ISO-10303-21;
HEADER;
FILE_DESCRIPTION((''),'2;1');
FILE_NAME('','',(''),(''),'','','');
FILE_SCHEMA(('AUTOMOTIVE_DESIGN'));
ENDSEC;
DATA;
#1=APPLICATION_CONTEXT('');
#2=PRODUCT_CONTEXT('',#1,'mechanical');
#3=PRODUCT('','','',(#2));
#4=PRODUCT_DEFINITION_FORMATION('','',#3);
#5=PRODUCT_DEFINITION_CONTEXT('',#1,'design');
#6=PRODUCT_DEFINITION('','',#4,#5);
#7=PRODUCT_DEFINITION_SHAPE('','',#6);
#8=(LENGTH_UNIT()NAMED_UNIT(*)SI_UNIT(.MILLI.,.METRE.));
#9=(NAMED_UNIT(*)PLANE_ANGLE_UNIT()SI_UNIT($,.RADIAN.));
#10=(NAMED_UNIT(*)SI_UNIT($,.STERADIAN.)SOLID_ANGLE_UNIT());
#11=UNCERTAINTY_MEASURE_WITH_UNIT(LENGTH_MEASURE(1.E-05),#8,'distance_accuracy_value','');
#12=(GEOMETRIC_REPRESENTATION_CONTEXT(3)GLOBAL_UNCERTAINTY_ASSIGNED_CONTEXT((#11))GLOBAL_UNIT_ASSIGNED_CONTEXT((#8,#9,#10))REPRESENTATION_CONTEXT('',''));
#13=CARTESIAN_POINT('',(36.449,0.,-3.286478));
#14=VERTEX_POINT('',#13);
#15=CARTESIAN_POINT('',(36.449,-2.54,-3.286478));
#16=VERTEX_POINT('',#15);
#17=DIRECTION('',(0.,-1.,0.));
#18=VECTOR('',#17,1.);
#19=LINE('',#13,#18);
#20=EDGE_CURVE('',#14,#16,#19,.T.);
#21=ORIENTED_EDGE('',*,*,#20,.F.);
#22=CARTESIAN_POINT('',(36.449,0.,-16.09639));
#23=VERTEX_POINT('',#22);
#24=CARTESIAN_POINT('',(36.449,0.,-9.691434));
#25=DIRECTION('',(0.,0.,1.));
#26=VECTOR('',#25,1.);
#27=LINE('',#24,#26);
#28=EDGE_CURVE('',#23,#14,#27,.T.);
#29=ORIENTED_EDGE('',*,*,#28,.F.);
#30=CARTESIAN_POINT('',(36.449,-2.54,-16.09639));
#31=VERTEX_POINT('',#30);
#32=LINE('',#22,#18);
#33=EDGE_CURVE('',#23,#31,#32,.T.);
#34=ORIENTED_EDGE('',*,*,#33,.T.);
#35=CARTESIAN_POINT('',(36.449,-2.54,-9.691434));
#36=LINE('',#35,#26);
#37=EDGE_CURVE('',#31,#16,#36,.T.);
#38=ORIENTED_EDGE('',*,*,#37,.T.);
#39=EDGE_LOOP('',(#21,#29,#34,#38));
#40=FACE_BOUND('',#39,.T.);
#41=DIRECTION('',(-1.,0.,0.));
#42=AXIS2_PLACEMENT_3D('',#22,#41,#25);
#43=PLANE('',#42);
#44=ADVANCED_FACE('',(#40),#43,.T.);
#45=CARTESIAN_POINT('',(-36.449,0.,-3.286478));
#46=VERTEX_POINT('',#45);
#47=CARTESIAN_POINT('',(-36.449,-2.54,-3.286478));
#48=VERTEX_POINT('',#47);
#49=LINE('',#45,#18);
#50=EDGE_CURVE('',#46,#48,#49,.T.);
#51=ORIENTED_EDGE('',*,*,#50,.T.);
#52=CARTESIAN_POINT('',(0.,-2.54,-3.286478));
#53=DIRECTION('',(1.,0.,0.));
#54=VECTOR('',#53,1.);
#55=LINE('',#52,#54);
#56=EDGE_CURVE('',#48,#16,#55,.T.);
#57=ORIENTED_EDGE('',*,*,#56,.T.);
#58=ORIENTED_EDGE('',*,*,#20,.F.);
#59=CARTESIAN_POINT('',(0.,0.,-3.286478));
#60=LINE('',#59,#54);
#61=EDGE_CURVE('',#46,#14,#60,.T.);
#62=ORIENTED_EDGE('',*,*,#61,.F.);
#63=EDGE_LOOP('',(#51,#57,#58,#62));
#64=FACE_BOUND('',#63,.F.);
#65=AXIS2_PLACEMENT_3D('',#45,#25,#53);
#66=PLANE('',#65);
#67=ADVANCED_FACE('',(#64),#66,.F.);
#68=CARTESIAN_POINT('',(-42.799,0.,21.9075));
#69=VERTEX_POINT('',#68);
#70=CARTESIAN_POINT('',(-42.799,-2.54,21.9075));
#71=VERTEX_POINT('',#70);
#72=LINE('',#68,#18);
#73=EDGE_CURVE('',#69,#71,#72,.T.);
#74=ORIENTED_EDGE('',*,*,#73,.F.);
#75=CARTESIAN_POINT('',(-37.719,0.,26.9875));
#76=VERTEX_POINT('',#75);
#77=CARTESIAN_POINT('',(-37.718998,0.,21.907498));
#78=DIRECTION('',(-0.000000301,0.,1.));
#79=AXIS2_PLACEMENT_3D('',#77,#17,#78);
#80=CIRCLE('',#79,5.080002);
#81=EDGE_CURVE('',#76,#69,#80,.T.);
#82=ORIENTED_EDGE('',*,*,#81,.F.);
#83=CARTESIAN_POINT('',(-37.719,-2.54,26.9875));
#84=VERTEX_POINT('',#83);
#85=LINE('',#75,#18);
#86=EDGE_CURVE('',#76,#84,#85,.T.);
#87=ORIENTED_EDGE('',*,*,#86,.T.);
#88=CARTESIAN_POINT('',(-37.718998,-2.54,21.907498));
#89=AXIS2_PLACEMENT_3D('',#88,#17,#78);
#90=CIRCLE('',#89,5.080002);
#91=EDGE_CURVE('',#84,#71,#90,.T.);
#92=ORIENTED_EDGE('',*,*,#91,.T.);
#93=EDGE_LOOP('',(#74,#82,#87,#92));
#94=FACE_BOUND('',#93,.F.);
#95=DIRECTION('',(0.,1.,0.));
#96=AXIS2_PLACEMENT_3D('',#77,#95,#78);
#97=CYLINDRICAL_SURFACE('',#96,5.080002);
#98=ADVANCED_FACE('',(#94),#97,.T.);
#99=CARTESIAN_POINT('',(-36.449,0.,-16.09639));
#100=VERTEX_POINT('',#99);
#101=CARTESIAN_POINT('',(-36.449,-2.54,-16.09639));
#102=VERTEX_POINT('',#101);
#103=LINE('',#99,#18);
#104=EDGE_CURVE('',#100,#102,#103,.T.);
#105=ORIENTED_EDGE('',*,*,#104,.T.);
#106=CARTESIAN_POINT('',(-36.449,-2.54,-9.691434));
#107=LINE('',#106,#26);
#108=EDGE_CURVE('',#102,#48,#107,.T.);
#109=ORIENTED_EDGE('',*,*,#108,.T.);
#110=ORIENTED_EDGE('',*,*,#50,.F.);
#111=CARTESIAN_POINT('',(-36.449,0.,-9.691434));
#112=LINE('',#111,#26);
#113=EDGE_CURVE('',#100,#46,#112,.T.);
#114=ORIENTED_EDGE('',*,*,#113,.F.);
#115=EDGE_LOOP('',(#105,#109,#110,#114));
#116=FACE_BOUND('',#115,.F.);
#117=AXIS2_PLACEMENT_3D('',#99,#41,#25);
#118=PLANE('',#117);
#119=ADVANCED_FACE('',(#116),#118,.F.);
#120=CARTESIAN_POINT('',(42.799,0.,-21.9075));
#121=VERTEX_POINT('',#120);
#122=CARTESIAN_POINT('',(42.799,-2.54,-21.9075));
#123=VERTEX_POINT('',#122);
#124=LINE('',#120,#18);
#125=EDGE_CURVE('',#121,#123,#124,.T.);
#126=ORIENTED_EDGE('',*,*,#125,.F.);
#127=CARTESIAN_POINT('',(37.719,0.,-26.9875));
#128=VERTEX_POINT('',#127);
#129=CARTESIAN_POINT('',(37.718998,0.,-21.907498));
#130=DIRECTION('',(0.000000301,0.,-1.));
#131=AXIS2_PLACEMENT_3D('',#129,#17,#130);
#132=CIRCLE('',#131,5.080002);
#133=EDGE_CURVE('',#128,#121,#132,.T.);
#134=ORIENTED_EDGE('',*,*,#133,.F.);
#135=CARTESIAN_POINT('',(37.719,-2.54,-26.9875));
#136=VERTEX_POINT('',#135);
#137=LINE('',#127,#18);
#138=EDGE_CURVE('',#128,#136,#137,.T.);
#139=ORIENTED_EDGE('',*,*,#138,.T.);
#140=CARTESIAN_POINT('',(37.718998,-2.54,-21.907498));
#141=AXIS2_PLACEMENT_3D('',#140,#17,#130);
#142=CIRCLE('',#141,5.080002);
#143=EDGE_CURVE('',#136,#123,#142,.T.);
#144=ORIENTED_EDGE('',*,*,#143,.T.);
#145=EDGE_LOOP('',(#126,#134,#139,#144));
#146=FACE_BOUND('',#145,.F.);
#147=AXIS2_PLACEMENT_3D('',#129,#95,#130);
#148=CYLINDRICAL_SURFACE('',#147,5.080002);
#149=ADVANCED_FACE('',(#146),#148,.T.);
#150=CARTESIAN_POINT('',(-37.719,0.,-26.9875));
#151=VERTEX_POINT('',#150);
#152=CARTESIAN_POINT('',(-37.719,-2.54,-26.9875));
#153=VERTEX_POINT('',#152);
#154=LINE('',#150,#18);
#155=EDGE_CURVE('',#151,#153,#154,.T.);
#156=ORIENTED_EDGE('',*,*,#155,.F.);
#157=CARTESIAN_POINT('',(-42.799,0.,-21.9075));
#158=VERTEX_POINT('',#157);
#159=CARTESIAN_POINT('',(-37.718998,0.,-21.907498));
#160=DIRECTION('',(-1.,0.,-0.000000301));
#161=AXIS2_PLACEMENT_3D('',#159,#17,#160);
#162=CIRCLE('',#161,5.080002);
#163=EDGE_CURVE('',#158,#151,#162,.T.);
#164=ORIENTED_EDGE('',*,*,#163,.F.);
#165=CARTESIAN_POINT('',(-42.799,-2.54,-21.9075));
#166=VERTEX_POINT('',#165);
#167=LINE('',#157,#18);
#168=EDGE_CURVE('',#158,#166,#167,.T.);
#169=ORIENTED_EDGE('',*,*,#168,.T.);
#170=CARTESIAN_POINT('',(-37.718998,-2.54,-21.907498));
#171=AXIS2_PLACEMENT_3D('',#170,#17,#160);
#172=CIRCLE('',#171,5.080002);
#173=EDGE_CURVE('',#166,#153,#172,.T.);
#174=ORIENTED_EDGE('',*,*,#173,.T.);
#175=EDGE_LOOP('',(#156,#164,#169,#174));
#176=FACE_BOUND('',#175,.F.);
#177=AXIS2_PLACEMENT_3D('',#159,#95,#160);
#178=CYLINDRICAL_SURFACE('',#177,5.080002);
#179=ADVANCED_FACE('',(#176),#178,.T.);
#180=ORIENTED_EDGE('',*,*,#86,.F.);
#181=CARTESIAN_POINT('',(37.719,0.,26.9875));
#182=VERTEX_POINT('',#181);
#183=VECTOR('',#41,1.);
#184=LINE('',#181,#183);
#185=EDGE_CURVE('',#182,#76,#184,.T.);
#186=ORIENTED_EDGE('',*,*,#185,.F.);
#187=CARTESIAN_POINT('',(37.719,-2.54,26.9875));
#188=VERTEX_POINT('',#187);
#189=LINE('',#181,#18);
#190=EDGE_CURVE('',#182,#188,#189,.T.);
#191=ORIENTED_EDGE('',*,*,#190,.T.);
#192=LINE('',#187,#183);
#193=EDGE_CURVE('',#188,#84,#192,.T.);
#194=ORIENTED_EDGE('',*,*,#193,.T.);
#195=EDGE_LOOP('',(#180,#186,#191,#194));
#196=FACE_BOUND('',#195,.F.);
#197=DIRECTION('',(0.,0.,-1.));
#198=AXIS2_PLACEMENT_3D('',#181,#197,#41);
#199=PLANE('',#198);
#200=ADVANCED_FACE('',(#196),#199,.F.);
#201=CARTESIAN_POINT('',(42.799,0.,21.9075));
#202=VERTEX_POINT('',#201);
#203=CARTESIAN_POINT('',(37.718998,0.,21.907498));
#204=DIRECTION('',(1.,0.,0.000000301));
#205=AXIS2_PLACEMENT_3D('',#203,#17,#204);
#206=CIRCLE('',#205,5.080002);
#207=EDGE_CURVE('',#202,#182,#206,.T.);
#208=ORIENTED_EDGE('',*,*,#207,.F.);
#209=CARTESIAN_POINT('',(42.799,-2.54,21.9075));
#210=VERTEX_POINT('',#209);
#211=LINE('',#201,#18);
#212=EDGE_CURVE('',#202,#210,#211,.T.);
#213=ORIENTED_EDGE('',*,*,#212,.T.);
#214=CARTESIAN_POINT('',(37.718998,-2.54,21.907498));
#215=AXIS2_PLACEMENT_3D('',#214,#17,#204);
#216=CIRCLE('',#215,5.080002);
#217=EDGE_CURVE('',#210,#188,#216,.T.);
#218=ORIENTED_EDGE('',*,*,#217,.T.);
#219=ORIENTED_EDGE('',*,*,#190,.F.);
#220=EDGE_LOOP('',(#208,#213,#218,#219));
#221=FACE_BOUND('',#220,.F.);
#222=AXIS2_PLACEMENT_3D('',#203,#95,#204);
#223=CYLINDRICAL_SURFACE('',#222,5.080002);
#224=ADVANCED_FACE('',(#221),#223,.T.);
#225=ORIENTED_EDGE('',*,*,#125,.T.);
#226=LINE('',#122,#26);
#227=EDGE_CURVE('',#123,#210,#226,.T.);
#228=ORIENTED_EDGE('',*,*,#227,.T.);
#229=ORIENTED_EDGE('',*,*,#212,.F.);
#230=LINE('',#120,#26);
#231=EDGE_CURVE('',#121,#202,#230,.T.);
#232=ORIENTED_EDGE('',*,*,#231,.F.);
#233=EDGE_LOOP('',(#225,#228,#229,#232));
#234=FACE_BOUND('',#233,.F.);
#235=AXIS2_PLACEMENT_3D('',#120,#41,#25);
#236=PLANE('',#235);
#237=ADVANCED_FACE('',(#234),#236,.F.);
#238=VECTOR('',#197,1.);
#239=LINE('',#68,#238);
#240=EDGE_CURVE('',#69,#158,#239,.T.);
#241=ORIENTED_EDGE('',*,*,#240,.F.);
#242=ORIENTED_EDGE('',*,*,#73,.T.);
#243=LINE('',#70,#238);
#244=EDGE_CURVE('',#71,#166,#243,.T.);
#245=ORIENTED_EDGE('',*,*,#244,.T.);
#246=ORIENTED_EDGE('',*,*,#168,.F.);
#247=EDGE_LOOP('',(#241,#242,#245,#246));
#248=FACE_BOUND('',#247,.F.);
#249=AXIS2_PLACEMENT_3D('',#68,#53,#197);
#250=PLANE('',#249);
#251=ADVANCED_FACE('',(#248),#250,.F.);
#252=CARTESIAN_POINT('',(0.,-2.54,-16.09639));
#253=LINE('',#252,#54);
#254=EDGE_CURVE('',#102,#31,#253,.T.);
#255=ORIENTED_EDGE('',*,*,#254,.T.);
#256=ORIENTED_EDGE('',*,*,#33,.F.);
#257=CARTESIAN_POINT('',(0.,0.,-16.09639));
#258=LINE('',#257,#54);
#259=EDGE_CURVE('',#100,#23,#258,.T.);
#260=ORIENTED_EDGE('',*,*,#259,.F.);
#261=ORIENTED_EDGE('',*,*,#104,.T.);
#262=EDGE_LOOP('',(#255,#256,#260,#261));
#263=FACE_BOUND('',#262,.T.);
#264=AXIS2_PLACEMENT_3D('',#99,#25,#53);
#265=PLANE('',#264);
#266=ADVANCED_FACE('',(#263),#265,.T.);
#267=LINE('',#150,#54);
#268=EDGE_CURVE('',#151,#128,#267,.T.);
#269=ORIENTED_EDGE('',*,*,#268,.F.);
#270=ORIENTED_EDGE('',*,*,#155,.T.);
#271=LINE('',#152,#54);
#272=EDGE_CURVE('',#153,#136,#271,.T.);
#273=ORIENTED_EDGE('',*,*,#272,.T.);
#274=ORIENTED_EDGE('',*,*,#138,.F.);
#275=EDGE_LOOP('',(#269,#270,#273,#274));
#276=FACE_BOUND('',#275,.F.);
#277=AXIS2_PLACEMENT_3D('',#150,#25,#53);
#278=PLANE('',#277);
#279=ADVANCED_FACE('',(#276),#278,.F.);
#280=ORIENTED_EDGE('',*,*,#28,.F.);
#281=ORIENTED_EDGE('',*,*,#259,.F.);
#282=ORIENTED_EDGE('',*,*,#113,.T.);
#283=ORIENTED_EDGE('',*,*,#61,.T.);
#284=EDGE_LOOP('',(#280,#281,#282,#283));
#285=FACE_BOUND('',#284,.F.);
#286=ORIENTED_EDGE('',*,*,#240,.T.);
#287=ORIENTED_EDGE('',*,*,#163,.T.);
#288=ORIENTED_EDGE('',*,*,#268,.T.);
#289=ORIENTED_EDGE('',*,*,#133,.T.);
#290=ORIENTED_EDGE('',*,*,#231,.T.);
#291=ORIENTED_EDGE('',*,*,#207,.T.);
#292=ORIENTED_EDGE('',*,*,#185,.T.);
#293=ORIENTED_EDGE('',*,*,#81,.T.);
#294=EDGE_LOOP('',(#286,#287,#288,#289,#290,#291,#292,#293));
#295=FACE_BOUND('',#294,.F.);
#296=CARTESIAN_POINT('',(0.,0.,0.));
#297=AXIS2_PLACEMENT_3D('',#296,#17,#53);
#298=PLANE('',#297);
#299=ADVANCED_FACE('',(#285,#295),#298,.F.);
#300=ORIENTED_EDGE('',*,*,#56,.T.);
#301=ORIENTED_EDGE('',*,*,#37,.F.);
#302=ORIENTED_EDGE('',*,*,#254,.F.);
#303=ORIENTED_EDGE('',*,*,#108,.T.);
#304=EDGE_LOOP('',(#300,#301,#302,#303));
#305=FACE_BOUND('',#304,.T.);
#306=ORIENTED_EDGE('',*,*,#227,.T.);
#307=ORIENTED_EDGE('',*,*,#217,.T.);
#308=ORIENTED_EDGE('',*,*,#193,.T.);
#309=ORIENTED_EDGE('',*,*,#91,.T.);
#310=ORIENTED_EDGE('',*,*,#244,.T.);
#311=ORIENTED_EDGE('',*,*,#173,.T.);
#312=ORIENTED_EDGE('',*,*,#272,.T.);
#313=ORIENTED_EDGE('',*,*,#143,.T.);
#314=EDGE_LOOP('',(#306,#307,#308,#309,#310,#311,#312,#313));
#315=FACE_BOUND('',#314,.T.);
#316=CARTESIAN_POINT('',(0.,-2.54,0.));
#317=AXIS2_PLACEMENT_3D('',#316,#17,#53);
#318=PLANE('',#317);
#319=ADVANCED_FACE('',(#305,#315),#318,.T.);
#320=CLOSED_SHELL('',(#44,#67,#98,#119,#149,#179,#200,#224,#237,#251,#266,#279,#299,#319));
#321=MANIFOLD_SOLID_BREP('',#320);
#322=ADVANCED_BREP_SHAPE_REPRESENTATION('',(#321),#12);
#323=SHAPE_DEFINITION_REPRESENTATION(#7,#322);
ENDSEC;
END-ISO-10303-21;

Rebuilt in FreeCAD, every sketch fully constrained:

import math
import FreeCAD as App
import Part
import Sketcher
Q = App.Units.Quantity

doc = App.newDocument("Part")
body = doc.addObject("PartDesign::Body", "Body")

# Sketch on XZ plane
sketch1 = body.newObject("Sketcher::SketchObject", "Sketch")
sketch1.AttachmentSupport = (doc.getObject("XZ_Plane"), [""])
sketch1.MapMode = "FlatFace"
sketch1.addGeometry(Part.LineSegment(App.Vector(37.719, 26.9875, 0), App.Vector(-37.719, 26.9875, 0)), False)
sketch1.addGeometry(Part.ArcOfCircle(Part.Circle(App.Vector(-37.718998, 21.907498, 0), App.Vector(0, 0, 1), 5.080002), math.radians(90.000017), math.radians(179.999983)), False)
sketch1.addGeometry(Part.LineSegment(App.Vector(-42.799, 21.9075, 0), App.Vector(-42.799, -21.9075, 0)), False)
sketch1.addGeometry(Part.ArcOfCircle(Part.Circle(App.Vector(-37.718998, -21.907498, 0), App.Vector(0, 0, 1), 5.080002), math.radians(-179.999983), math.radians(-90.000017)), False)
sketch1.addGeometry(Part.LineSegment(App.Vector(-37.719, -26.9875, 0), App.Vector(37.719, -26.9875, 0)), False)
sketch1.addGeometry(Part.ArcOfCircle(Part.Circle(App.Vector(37.718998, -21.907498, 0), App.Vector(0, 0, 1), 5.080002), math.radians(-89.999983), math.radians(-0.000017)), False)
sketch1.addGeometry(Part.LineSegment(App.Vector(42.799, -21.9075, 0), App.Vector(42.799, 21.9075, 0)), False)
sketch1.addGeometry(Part.ArcOfCircle(Part.Circle(App.Vector(37.718998, 21.907498, 0), App.Vector(0, 0, 1), 5.080002), math.radians(0.000017), math.radians(89.999983)), False)
sketch1.addGeometry(Part.LineSegment(App.Vector(36.449, -16.09639, 0), App.Vector(-36.449, -16.09639, 0)), False)
sketch1.addGeometry(Part.LineSegment(App.Vector(-36.449, -16.09639, 0), App.Vector(-36.449, -3.286478, 0)), False)
sketch1.addGeometry(Part.LineSegment(App.Vector(-36.449, -3.286478, 0), App.Vector(36.449, -3.286478, 0)), False)
sketch1.addGeometry(Part.LineSegment(App.Vector(36.449, -3.286478, 0), App.Vector(36.449, -16.09639, 0)), False)
sketch1.addConstraint(Sketcher.Constraint("Tangent", 0, 2, 1, 1))
sketch1.addConstraint(Sketcher.Constraint("Tangent", 1, 2, 2, 1))
sketch1.addConstraint(Sketcher.Constraint("Tangent", 2, 2, 3, 1))
sketch1.addConstraint(Sketcher.Constraint("Tangent", 3, 2, 4, 1))
sketch1.addConstraint(Sketcher.Constraint("Tangent", 4, 2, 5, 1))
sketch1.addConstraint(Sketcher.Constraint("Tangent", 5, 2, 6, 1))
sketch1.addConstraint(Sketcher.Constraint("Tangent", 6, 2, 7, 1))
sketch1.addConstraint(Sketcher.Constraint("Tangent", 7, 2, 0, 1))
sketch1.addConstraint(Sketcher.Constraint("Coincident", 8, 2, 9, 1))
sketch1.addConstraint(Sketcher.Constraint("Coincident", 9, 2, 10, 1))
sketch1.addConstraint(Sketcher.Constraint("Coincident", 10, 2, 11, 1))
sketch1.addConstraint(Sketcher.Constraint("Coincident", 11, 2, 8, 1))
sketch1.addConstraint(Sketcher.Constraint("Horizontal", 0))
sketch1.addConstraint(Sketcher.Constraint("Vertical", 2))
sketch1.addConstraint(Sketcher.Constraint("Horizontal", 4))
sketch1.addConstraint(Sketcher.Constraint("Vertical", 6))
sketch1.addConstraint(Sketcher.Constraint("Horizontal", 8))
sketch1.addConstraint(Sketcher.Constraint("Vertical", 9))
sketch1.addConstraint(Sketcher.Constraint("Horizontal", 10))
sketch1.addConstraint(Sketcher.Constraint("Vertical", 11))
sketch1.addConstraint(Sketcher.Constraint("Equal", 1, 3))
sketch1.addConstraint(Sketcher.Constraint("Equal", 3, 5))
sketch1.addConstraint(Sketcher.Constraint("Equal", 5, 7))
sketch1.addConstraint(Sketcher.Constraint("Symmetric", 1, 3, 5, 3, -1, 1))
sketch1.addConstraint(Sketcher.Constraint("Radius", 1, Q("0.2000001 in")))
sketch1.addConstraint(Sketcher.Constraint("DistanceX", 0, 2, 0, 1, Q("2.97 in")))
sketch1.addConstraint(Sketcher.Constraint("DistanceX", 8, 2, 8, 1, Q("2.87 in")))
sketch1.addConstraint(Sketcher.Constraint("DistanceY", 2, 2, 2, 1, Q("1.725 in")))
sketch1.addConstraint(Sketcher.Constraint("DistanceX", 3, 3, 8, 2, Q("0.0499999 in")))
sketch1.addConstraint(Sketcher.Constraint("DistanceY", 9, 1, 9, 2, 12.809911))
sketch1.addConstraint(Sketcher.Constraint("DistanceY", 8, 2, -1, 1, 16.09639))
pad1 = body.newObject("PartDesign::Pad", "Pad")
pad1.Profile = sketch1
pad1.Length = Q("0.1 in")

doc.recompute()
